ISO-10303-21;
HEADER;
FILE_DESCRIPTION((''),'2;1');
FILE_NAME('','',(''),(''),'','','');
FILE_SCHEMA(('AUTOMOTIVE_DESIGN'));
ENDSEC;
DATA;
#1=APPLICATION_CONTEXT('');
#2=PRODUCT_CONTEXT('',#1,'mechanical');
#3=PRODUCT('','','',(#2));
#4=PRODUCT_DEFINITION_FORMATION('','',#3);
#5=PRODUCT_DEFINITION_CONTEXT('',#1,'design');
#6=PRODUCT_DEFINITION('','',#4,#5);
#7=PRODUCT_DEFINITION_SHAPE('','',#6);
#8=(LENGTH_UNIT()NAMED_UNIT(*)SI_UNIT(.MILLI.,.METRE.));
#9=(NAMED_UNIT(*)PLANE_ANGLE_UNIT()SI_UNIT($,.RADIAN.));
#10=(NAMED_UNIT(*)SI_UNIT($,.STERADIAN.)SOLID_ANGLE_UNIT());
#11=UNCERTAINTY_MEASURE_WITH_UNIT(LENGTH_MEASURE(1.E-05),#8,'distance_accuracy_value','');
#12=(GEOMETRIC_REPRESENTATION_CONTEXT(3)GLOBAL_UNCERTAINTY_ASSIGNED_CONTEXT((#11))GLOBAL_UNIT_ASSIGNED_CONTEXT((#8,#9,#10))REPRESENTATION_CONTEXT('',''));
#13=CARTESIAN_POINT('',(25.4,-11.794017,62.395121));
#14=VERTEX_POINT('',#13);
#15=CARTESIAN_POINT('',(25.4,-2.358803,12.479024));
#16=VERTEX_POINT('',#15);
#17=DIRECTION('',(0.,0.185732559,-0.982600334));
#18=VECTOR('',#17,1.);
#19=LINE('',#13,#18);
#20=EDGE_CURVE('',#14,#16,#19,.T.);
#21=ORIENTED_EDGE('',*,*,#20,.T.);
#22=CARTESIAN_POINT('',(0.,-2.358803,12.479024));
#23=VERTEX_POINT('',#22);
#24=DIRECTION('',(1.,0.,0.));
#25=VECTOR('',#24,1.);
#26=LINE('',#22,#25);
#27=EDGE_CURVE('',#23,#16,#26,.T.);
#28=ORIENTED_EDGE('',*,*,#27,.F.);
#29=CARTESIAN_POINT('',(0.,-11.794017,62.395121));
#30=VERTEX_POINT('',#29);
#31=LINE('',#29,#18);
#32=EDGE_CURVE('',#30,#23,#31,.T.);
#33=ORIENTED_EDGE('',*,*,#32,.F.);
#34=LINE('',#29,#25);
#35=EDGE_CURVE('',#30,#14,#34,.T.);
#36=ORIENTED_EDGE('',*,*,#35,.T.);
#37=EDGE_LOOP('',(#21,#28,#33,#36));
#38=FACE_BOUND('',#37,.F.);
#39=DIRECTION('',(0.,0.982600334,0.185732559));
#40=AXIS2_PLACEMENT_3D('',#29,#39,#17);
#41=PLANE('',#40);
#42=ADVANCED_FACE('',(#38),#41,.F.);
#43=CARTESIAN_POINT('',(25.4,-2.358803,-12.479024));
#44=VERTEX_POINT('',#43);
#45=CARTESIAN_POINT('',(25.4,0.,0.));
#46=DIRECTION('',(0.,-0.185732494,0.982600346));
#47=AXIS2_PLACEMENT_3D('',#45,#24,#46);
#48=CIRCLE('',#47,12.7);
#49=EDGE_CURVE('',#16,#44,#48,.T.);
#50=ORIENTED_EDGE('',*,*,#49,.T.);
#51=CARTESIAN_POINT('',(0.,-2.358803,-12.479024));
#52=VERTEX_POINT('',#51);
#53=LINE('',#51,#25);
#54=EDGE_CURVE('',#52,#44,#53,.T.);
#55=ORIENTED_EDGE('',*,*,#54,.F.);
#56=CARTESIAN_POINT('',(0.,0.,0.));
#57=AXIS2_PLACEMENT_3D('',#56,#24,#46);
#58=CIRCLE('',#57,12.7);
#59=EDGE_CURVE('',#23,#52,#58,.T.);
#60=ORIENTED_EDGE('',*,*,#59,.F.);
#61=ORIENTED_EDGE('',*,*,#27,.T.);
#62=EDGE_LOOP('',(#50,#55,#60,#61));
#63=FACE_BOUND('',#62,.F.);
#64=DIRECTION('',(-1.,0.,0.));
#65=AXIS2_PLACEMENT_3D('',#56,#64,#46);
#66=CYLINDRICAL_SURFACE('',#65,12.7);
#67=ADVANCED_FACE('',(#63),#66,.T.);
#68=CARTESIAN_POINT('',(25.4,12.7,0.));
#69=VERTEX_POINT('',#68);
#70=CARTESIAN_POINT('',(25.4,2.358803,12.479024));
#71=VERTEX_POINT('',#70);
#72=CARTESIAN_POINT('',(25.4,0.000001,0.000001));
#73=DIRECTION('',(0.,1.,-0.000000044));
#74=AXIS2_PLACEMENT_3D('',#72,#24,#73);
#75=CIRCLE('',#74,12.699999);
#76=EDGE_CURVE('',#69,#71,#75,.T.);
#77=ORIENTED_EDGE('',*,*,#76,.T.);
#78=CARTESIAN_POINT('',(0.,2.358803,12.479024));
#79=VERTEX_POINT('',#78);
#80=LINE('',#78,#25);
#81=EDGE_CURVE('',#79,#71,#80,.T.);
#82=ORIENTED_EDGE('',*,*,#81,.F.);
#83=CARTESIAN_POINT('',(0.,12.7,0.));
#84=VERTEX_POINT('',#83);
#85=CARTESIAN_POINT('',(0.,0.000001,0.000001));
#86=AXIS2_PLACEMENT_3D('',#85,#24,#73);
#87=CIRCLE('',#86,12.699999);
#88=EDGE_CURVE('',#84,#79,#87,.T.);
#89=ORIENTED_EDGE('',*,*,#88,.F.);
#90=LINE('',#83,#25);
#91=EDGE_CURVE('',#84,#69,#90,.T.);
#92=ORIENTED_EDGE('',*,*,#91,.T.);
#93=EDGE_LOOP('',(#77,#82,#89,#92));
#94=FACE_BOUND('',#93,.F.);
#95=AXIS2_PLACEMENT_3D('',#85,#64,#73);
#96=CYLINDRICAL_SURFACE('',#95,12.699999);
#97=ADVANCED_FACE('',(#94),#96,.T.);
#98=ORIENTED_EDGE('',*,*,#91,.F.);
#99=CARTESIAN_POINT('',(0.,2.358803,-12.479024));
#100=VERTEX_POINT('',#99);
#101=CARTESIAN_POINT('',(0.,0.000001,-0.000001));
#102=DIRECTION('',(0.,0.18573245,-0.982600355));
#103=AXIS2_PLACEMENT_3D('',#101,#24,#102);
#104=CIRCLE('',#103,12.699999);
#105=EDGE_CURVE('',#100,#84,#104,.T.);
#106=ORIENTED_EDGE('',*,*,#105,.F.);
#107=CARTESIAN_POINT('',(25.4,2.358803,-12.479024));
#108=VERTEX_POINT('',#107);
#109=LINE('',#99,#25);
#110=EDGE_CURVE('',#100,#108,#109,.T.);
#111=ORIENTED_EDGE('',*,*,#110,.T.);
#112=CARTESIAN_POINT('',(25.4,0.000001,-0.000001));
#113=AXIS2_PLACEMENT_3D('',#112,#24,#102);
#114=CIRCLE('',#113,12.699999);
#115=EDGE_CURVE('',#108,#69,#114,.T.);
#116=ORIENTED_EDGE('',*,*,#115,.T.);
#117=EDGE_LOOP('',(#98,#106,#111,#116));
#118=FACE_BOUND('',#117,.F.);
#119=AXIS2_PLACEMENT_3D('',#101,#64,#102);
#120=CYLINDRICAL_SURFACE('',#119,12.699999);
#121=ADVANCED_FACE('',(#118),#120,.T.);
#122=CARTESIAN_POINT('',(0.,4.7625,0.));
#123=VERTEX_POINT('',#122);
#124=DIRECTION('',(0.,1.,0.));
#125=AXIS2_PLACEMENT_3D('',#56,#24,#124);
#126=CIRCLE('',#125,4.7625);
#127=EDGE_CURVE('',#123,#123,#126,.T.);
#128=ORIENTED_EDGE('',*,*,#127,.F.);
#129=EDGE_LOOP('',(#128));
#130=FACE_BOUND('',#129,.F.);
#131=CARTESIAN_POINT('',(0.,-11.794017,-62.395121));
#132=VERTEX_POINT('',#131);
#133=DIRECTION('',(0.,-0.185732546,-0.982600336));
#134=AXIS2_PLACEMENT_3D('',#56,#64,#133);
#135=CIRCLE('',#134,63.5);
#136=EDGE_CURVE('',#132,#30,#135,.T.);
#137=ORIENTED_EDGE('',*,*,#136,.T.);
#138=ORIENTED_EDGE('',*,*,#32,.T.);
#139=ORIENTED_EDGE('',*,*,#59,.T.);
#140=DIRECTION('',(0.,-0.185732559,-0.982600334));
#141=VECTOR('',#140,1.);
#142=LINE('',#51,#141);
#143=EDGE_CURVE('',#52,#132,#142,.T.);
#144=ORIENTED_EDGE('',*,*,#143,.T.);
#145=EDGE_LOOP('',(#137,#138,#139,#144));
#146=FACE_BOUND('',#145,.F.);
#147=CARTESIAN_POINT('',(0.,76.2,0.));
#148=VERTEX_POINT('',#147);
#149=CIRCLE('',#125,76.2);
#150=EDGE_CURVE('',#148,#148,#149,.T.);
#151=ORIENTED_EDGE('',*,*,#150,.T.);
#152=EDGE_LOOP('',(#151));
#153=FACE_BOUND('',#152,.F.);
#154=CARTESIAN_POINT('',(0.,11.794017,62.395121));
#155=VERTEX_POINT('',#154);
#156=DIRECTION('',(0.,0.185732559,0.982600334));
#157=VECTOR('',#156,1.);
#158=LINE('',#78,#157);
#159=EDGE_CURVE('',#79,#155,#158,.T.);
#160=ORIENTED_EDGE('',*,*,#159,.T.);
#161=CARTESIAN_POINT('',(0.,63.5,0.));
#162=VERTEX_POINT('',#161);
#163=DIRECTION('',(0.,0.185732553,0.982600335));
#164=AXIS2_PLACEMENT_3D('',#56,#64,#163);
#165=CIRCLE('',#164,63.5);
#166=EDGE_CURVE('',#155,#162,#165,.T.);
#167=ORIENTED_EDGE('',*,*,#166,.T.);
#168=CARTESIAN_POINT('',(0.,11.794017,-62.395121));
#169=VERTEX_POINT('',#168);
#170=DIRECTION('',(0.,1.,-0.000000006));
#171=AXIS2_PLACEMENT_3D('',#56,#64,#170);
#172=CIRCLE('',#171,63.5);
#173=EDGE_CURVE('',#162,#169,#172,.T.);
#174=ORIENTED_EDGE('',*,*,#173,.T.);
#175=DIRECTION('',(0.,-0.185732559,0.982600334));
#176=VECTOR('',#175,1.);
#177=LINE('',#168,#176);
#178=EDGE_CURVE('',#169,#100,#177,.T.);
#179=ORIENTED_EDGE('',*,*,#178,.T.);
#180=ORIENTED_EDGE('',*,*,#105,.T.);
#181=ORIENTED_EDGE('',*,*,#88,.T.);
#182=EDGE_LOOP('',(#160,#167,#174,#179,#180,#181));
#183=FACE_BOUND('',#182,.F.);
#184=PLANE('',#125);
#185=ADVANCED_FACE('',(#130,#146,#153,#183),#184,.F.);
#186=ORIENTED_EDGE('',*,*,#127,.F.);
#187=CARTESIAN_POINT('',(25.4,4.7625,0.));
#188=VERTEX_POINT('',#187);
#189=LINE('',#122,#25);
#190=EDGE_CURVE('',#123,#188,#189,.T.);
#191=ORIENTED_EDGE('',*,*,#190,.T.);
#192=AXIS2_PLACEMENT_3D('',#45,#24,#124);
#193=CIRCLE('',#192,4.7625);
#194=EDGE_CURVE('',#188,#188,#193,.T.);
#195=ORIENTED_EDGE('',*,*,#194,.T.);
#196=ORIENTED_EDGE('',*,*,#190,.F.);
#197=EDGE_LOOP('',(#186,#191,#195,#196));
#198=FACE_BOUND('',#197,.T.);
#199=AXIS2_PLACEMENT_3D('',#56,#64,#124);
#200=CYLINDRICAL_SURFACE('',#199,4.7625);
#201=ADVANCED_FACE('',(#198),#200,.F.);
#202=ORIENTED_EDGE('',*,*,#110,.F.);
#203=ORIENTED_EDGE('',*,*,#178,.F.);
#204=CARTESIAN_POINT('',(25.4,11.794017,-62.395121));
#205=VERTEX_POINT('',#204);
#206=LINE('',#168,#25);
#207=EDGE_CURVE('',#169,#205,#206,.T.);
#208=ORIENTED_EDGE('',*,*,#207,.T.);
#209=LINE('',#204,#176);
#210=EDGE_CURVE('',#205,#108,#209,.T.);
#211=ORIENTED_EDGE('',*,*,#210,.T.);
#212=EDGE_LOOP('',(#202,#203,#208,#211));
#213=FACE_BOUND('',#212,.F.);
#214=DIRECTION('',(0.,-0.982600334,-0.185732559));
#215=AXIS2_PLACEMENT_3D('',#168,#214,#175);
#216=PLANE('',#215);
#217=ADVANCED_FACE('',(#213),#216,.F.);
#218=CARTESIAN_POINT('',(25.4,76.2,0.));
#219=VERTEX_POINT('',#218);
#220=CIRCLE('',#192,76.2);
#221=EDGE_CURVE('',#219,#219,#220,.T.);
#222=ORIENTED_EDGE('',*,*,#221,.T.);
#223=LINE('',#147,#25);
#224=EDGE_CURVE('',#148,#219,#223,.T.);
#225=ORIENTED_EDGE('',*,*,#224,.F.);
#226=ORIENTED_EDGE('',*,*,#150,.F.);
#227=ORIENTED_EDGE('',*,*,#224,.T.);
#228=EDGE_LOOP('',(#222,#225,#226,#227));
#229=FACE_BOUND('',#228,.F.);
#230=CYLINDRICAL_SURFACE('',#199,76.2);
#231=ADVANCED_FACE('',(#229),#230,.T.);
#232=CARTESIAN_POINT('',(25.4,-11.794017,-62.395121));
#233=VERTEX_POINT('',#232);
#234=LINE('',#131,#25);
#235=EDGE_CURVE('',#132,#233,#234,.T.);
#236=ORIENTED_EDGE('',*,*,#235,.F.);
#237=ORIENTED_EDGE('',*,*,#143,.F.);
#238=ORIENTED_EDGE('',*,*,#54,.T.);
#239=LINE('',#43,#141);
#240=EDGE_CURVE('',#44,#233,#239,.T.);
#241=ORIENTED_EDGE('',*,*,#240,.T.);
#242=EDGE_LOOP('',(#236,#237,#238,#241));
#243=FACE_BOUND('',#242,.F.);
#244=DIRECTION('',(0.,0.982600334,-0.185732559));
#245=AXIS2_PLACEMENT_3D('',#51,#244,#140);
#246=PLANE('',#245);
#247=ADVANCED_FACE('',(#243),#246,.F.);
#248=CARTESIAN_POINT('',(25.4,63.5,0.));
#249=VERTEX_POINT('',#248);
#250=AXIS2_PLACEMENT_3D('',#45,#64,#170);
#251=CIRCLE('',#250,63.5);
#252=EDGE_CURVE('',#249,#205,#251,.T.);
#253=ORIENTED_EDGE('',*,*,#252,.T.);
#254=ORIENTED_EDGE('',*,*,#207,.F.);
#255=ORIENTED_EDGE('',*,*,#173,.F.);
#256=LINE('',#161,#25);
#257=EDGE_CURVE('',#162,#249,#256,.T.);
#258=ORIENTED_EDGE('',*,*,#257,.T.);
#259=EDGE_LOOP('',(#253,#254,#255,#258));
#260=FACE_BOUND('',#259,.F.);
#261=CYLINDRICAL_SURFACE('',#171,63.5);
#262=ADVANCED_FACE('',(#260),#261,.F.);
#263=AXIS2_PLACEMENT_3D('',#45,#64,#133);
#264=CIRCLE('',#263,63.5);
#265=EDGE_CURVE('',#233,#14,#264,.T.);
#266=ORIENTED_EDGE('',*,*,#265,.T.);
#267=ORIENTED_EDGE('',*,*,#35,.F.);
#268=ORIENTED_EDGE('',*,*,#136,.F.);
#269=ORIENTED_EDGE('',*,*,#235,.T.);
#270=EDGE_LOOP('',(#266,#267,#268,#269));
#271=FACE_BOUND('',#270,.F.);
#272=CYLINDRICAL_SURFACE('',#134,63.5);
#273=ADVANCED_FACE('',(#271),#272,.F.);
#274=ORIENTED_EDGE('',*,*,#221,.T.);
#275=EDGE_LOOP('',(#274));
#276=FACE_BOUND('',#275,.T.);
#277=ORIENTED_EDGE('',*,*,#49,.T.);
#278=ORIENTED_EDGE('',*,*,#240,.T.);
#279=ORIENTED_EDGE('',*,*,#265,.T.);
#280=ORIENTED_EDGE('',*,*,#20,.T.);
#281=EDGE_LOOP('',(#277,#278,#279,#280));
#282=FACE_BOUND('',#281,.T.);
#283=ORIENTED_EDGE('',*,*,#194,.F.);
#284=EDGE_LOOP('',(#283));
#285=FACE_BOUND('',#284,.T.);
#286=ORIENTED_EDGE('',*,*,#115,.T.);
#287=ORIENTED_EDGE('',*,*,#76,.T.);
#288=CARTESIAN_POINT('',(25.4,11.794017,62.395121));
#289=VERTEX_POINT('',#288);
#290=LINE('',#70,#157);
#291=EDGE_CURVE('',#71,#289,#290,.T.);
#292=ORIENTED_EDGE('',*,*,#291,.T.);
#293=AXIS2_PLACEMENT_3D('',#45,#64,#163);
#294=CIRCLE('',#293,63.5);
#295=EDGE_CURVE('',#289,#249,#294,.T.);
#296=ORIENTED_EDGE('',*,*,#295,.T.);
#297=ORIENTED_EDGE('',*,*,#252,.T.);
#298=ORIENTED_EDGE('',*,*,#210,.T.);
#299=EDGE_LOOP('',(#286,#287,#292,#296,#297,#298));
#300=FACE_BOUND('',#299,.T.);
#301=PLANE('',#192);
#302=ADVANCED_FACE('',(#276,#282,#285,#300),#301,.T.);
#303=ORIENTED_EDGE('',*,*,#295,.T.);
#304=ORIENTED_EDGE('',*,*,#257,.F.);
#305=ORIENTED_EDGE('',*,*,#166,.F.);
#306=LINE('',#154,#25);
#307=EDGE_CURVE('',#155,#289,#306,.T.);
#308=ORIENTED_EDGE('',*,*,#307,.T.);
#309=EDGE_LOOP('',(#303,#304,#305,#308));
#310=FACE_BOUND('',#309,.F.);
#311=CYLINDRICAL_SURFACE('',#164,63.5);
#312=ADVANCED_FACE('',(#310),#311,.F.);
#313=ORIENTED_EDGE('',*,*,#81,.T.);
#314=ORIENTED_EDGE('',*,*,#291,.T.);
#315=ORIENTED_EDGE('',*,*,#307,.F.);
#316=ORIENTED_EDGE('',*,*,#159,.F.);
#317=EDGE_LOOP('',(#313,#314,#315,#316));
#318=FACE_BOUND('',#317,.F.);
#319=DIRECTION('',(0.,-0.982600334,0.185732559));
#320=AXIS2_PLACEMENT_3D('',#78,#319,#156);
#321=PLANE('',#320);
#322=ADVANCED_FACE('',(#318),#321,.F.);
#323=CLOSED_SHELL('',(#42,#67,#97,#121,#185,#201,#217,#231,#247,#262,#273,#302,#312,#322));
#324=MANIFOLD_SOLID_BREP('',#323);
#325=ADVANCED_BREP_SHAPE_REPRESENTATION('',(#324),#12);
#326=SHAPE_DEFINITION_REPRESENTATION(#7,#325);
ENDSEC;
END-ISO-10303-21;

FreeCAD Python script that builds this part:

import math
import FreeCAD as App
import Part
import Sketcher
Q = App.Units.Quantity

doc = App.newDocument("Part")
body = doc.addObject("PartDesign::Body", "Body")

sketch1 = body.newObject("Sketcher::SketchObject", "Sketch")
sketch1.AttachmentSupport = (doc.getObject("YZ_Plane"), [""])
sketch1.MapMode = "FlatFace"
sketch1.addGeometry([
    Part.Circle(App.Vector(0, 0, 0), App.Vector(0, 0, 1), 76.2),
    Part.ArcOfCircle(Part.Circle(App.Vector(0, 0, 0), App.Vector(0, 0, 1), 63.5), math.radians(100.703844), math.radians(259.296156)),
    Part.LineSegment(App.Vector(-11.794017, 62.395121, 0), App.Vector(-2.358803, 12.479024, 0)),
    Part.ArcOfCircle(Part.Circle(App.Vector(0, 0, 0), App.Vector(0, 0, 1), 12.7), math.radians(100.703841), math.radians(259.296159)),
    Part.LineSegment(App.Vector(-2.358803, -12.479024, 0), App.Vector(-11.794017, -62.395121, 0)),
    Part.ArcOfCircle(Part.Circle(App.Vector(0, 0, 0), App.Vector(0, 0, 1), 63.5), math.radians(-79.296155), math.radians(0)),
    Part.LineSegment(App.Vector(11.794017, -62.395121, 0), App.Vector(2.358803, -12.479024, 0)),
    Part.ArcOfCircle(Part.Circle(App.Vector(0.000001, -0.000001, 0), App.Vector(0, 0, 1), 12.699999), math.radians(-79.296161), math.radians(0.000003)),
    Part.ArcOfCircle(Part.Circle(App.Vector(0.000001, 0.000001, 0), App.Vector(0, 0, 1), 12.699999), math.radians(-0.000003), math.radians(79.296161)),
    Part.LineSegment(App.Vector(2.358803, 12.479024, 0), App.Vector(11.794017, 62.395121, 0)),
    Part.ArcOfCircle(Part.Circle(App.Vector(0, 0, 0), App.Vector(0, 0, 1), 63.5), math.radians(0), math.radians(79.296155)),
    Part.Circle(App.Vector(0, 0, 0), App.Vector(0, 0, 1), 4.7625),
], False)
sketch1.addConstraint([
    Sketcher.Constraint("Coincident", 1, 1, 2, 1),
    Sketcher.Constraint("Coincident", 2, 2, 3, 1),
    Sketcher.Constraint("Coincident", 3, 2, 4, 1),
    Sketcher.Constraint("Coincident", 4, 2, 1, 2),
    Sketcher.Constraint("Coincident", 5, 1, 6, 1),
    Sketcher.Constraint("Coincident", 6, 2, 7, 1),
    Sketcher.Constraint("Tangent", 7, 2, 8, 1),
    Sketcher.Constraint("Coincident", 8, 2, 9, 1),
    Sketcher.Constraint("Coincident", 9, 2, 10, 2),
    Sketcher.Constraint("Tangent", 10, 1, 5, 2),
    Sketcher.Constraint("Coincident", 0, 3, -1, 1),
    Sketcher.Constraint("Coincident", 1, 3, -1, 1),
    Sketcher.Constraint("Coincident", 3, 3, -1, 1),
    Sketcher.Constraint("Coincident", 5, 3, -1, 1),
    Sketcher.Constraint("Coincident", 7, 3, -1, 1),
    Sketcher.Constraint("Coincident", 11, 3, -1, 1),
    Sketcher.Constraint("Equal", 1, 5),
    Sketcher.Constraint("Equal", 3, 7),
    Sketcher.Constraint("Equal", 7, 8),
    Sketcher.Constraint("Equal", 5, 10),
    Sketcher.Constraint("PointOnObject", 7, 2, -1),
    Sketcher.Constraint("PointOnObject", 10, 1, -1),
    Sketcher.Constraint("Parallel", 2, 6),
    Sketcher.Constraint("Parallel", 4, 9),
    Sketcher.Constraint("Horizontal", 4, 2, 5, 1),
    Sketcher.Constraint("Horizontal", 3, 2, 6, 2),
    Sketcher.Constraint("Horizontal", 2, 2, 8, 2),
    Sketcher.Constraint("Vertical", 2, 2, 3, 2),
    Sketcher.Constraint("Diameter", 0, Q("6 in")),
    Sketcher.Constraint("Radius", 1, Q("2.5 in")),
    Sketcher.Constraint("Radius", 3, Q("0.5 in")),
    Sketcher.Constraint("Diameter", 11, Q("0.375 in")),
    Sketcher.Constraint("DistanceY", -1, 1, 2, 2, Q("0.4913002 in")),
    Sketcher.Constraint("DistanceY", -1, 1, 1, 1, Q("62.395121 mm")),
])
pad1 = body.newObject("PartDesign::Pad", "Pad")
pad1.Profile = sketch1
pad1.Length = Q("1 in")

doc.recompute()
